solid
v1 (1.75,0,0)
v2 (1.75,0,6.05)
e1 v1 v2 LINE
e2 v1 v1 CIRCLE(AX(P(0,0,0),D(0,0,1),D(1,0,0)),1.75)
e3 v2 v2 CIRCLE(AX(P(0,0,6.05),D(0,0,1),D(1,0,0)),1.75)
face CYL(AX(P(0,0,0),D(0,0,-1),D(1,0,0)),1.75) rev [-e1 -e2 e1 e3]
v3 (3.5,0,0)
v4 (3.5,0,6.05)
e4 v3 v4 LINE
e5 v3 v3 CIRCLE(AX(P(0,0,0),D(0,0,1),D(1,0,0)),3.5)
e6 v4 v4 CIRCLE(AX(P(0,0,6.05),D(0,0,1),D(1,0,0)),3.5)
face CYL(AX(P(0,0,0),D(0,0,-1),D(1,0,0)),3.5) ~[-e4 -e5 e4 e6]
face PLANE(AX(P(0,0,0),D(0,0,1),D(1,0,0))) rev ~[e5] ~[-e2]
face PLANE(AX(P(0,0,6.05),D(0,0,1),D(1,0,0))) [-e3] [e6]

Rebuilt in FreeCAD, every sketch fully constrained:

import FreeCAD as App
import Part
import Sketcher
Q = App.Units.Quantity

doc = App.newDocument("Part")
params = doc.addObject("Spreadsheet::Sheet", "Params")
for row, (alias, value) in enumerate([
    ("sketch1_diameter", "7 mm"),
    ("sketch1_diameter2", "3.5 mm"),
    ("pad1_length", "6.05 mm"),
], start=1):
    params.set(f"A{row}", alias)
    params.set(f"B{row}", "=" + value)
    params.setAlias(f"B{row}", alias)

body = doc.addObject("PartDesign::Body", "Body")

# Sketch on XY plane
sketch1 = body.newObject("Sketcher::SketchObject", "Sketch")
sketch1.AttachmentSupport = (doc.getObject("XY_Plane"), [""])
sketch1.MapMode = "FlatFace"
sketch1.addGeometry([
    Part.Circle(App.Vector(0, 0, 0), App.Vector(0, 0, 1), 3.5),
    Part.Circle(App.Vector(0, 0, 0), App.Vector(0, 0, 1), 1.75),
], False)
sketch1.addConstraint([
    Sketcher.Constraint("Coincident", 0, 3, -1, 1),
    Sketcher.Constraint("Coincident", 1, 3, -1, 1),
    Sketcher.Constraint("Diameter", 0, Q("7 mm")),
    Sketcher.Constraint("Diameter", 1, Q("3.5 mm")),
])
sketch1.setExpression("Constraints[2]", "Params.sketch1_diameter")
sketch1.setExpression("Constraints[3]", "Params.sketch1_diameter2")
pad1 = body.newObject("PartDesign::Pad", "Pad")
pad1.Profile = sketch1
pad1.setExpression("Length", "Params.pad1_length")

doc.recompute()
